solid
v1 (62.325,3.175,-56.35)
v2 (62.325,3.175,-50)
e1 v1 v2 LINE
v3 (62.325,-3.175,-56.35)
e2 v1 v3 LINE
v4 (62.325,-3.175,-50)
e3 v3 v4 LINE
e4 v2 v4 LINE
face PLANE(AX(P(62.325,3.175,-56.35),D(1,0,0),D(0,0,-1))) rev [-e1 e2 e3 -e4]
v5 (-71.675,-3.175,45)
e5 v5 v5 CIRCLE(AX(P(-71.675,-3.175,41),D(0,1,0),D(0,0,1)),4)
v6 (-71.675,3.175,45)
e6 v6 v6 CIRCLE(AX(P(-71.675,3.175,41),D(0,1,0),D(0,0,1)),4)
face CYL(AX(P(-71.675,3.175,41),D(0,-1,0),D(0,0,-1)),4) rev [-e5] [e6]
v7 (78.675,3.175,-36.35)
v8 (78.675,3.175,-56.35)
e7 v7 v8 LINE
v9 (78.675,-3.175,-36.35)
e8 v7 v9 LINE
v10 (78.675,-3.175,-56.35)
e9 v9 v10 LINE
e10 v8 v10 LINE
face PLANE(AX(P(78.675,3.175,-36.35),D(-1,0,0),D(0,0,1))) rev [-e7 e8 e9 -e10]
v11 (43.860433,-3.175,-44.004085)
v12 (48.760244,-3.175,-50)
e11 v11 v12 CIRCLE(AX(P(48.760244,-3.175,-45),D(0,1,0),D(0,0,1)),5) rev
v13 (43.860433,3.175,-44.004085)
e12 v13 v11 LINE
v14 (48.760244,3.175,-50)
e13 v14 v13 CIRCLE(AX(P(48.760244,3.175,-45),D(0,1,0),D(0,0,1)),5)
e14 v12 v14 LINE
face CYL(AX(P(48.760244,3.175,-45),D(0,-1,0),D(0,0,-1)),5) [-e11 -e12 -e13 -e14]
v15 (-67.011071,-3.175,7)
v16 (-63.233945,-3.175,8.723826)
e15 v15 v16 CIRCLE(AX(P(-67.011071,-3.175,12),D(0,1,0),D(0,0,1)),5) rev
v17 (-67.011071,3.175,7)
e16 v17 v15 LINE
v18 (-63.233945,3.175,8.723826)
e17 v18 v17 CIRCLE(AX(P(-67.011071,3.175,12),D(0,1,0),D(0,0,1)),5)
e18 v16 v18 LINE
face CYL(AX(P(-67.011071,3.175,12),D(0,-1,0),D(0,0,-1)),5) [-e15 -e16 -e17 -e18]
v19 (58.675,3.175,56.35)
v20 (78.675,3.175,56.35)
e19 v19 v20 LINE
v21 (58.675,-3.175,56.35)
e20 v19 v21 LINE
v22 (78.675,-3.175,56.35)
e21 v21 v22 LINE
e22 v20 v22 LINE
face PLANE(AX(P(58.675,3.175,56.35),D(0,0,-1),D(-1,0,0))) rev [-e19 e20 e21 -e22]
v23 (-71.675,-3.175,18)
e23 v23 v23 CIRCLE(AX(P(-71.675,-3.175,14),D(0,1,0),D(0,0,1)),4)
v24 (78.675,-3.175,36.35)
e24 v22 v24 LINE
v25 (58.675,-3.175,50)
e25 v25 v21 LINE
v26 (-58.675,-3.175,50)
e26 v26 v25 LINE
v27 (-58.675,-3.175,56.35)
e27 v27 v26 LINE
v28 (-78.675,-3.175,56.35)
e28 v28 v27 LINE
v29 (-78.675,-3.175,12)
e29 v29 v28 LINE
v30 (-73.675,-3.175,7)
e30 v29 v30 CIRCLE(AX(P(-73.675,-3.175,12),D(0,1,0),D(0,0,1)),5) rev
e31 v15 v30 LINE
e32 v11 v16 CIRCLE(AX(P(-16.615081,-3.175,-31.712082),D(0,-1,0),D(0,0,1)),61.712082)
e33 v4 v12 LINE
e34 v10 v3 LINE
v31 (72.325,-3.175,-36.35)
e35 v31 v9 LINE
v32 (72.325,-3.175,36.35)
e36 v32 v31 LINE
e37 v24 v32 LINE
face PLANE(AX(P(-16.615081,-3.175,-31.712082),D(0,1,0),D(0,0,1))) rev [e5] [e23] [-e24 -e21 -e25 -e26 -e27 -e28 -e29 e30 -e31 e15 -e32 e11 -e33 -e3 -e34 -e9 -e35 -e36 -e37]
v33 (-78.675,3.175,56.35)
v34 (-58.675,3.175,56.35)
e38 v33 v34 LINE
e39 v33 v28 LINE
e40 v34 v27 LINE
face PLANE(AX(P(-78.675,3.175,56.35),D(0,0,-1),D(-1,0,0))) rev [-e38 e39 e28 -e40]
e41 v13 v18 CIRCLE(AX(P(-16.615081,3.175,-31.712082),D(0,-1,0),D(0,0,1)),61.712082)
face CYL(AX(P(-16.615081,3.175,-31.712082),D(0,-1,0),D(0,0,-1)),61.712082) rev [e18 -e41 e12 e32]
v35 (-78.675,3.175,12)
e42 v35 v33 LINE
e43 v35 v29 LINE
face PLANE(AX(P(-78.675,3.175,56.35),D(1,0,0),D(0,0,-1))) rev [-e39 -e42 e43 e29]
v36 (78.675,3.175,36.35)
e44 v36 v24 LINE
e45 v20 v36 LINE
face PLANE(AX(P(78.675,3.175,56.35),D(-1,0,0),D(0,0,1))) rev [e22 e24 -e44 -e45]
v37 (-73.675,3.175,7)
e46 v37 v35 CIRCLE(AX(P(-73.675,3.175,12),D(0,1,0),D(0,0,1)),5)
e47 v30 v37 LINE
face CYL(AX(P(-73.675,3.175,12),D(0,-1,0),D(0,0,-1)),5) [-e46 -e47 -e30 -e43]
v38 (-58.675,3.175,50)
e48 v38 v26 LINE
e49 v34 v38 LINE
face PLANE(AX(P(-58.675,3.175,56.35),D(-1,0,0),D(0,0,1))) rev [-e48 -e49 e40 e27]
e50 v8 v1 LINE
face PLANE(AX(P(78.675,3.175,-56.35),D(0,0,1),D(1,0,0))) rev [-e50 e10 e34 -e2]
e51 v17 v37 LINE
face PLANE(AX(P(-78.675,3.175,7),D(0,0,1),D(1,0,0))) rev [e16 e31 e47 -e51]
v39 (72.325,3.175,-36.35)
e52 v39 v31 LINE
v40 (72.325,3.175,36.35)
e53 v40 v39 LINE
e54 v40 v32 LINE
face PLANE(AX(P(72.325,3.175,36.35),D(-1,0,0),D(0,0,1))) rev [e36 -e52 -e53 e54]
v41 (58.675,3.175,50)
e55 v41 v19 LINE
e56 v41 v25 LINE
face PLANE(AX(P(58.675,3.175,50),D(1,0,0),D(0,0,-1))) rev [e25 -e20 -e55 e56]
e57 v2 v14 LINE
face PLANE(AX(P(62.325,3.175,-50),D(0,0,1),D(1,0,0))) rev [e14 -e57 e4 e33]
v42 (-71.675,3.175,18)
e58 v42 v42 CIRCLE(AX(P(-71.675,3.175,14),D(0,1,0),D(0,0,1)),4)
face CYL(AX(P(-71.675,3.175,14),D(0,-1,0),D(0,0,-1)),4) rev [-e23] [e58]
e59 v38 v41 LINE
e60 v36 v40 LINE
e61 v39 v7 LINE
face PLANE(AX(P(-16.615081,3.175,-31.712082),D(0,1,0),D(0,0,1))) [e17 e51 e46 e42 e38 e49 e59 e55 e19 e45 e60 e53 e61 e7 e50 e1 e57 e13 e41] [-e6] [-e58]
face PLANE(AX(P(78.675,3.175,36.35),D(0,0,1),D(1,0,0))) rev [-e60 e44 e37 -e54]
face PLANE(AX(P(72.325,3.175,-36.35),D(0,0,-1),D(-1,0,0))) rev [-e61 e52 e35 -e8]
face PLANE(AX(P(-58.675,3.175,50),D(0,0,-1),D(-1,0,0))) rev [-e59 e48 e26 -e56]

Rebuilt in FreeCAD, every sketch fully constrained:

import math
import FreeCAD as App
import Part
import Sketcher


def edges_at(feature, points):
    """Names of the edges that pass closest to the given points."""
    edges = feature.Shape.Edges
    near = lambda p: min(range(len(edges)), key=lambda i: edges[i].distToShape(Part.Vertex(*p))[0])
    return sorted({f"Edge{near(p) + 1}" for p in points})

doc = App.newDocument("Part")
body = doc.addObject("PartDesign::Body", "Body")

# Sketch on XZ plane
sketch1 = doc.addObject("Sketcher::SketchObject", "Sketch")
body.addObject(sketch1)
sketch1.AttachmentSupport = (doc.XZ_Plane, [""])
sketch1.MapMode = "FlatFace"
sketch1.addGeometry(Part.LineSegment(App.Vector(-78.675, 56.35, 0), App.Vector(-58.675, 56.35, 0)), False)
sketch1.addGeometry(Part.LineSegment(App.Vector(-58.675, 56.35, 0), App.Vector(-58.675, 50, 0)), False)
sketch1.addGeometry(Part.LineSegment(App.Vector(-58.675, 50, 0), App.Vector(58.675, 50, 0)), False)
sketch1.addGeometry(Part.LineSegment(App.Vector(58.675, 50, 0), App.Vector(58.675, 56.35, 0)), False)
sketch1.addGeometry(Part.LineSegment(App.Vector(58.675, 56.35, 0), App.Vector(78.675, 56.35, 0)), False)
sketch1.addGeometry(Part.LineSegment(App.Vector(78.675, 56.35, 0), App.Vector(78.675, 36.35, 0)), False)
sketch1.addGeometry(Part.LineSegment(App.Vector(78.675, 36.35, 0), App.Vector(72.325, 36.35, 0)), False)
sketch1.addGeometry(Part.LineSegment(App.Vector(72.325, 36.35, 0), App.Vector(72.325, -36.35, 0)), False)
sketch1.addGeometry(Part.LineSegment(App.Vector(72.325, -36.35, 0), App.Vector(78.675, -36.35, 0)), False)
sketch1.addGeometry(Part.LineSegment(App.Vector(78.675, -36.35, 0), App.Vector(78.675, -56.35, 0)), False)
sketch1.addGeometry(Part.LineSegment(App.Vector(78.675, -56.35, 0), App.Vector(62.325, -56.35, 0)), False)
sketch1.addGeometry(Part.LineSegment(App.Vector(62.325, -56.35, 0), App.Vector(62.325, -50, 0)), False)
sketch1.addGeometry(Part.LineSegment(App.Vector(62.325, -50, 0), App.Vector(42.325, -50, 0)), False)
sketch1.addGeometry(Part.ArcOfCircle(Part.Circle(App.Vector(-16.615081, -31.712082, 0), App.Vector(0, 0, 1), 61.712082), math.radians(-17.238062), math.radians(141.148688)), False)
sketch1.addGeometry(Part.LineSegment(App.Vector(-64.675, 7, 0), App.Vector(-78.675, 7, 0)), False)
sketch1.addGeometry(Part.LineSegment(App.Vector(-78.675, 7, 0), App.Vector(-78.675, 56.35, 0)), False)
sketch1.addGeometry(Part.Circle(App.Vector(-71.675, 41, 0), App.Vector(0, 0, 1), 4), False)
sketch1.addGeometry(Part.Circle(App.Vector(-71.675, 14, 0), App.Vector(0, 0, 1), 4), False)
sketch1.addConstraint(Sketcher.Constraint("Coincident", 0, 2, 1, 1))
sketch1.addConstraint(Sketcher.Constraint("Coincident", 1, 2, 2, 1))
sketch1.addConstraint(Sketcher.Constraint("Coincident", 2, 2, 3, 1))
sketch1.addConstraint(Sketcher.Constraint("Coincident", 3, 2, 4, 1))
sketch1.addConstraint(Sketcher.Constraint("Coincident", 4, 2, 5, 1))
sketch1.addConstraint(Sketcher.Constraint("Coincident", 5, 2, 6, 1))
sketch1.addConstraint(Sketcher.Constraint("Coincident", 6, 2, 7, 1))
sketch1.addConstraint(Sketcher.Constraint("Coincident", 7, 2, 8, 1))
sketch1.addConstraint(Sketcher.Constraint("Coincident", 8, 2, 9, 1))
sketch1.addConstraint(Sketcher.Constraint("Coincident", 9, 2, 10, 1))
sketch1.addConstraint(Sketcher.Constraint("Coincident", 10, 2, 11, 1))
sketch1.addConstraint(Sketcher.Constraint("Coincident", 11, 2, 12, 1))
sketch1.addConstraint(Sketcher.Constraint("Coincident", 12, 2, 13, 1))
sketch1.addConstraint(Sketcher.Constraint("Coincident", 13, 2, 14, 1))
sketch1.addConstraint(Sketcher.Constraint("Coincident", 14, 2, 15, 1))
sketch1.addConstraint(Sketcher.Constraint("Coincident", 15, 2, 0, 1))
sketch1.addConstraint(Sketcher.Constraint("Horizontal", 0))
sketch1.addConstraint(Sketcher.Constraint("Vertical", 1))
sketch1.addConstraint(Sketcher.Constraint("Horizontal", 2))
sketch1.addConstraint(Sketcher.Constraint("Vertical", 3))
sketch1.addConstraint(Sketcher.Constraint("Horizontal", 4))
sketch1.addConstraint(Sketcher.Constraint("Vertical", 5))
sketch1.addConstraint(Sketcher.Constraint("Horizontal", 6))
sketch1.addConstraint(Sketcher.Constraint("Vertical", 7))
sketch1.addConstraint(Sketcher.Constraint("Horizontal", 8))
sketch1.addConstraint(Sketcher.Constraint("Vertical", 9))
sketch1.addConstraint(Sketcher.Constraint("Horizontal", 10))
sketch1.addConstraint(Sketcher.Constraint("Vertical", 11))
sketch1.addConstraint(Sketcher.Constraint("Horizontal", 12))
sketch1.addConstraint(Sketcher.Constraint("Horizontal", 14))
sketch1.addConstraint(Sketcher.Constraint("Vertical", 15))
sketch1.addConstraint(Sketcher.Constraint("Equal", 16, 17))
sketch1.addConstraint(Sketcher.Constraint("Symmetric", 9, 2, 15, 2, -1, 1))
sketch1.addConstraint(Sketcher.Constraint("Symmetric", 0, 2, 3, 2, -2))
sketch1.addConstraint(Sketcher.Constraint("Symmetric", 5, 2, 8, 2, -1))
sketch1.addConstraint(Sketcher.Constraint("Vertical", 16, 3, 17, 3))
sketch1.addConstraint(Sketcher.Constraint("Equal", 4, 12))
sketch1.addConstraint(Sketcher.Constraint("Equal", 8, 1))
sketch1.addConstraint(Sketcher.Constraint("Equal", 12, 5))
sketch1.addConstraint(Sketcher.Constraint("Equal", 3, 11))
sketch1.addConstraint(Sketcher.Constraint("Diameter", 16, 8.0))
sketch1.addConstraint(Sketcher.Constraint("DistanceX", 0, 1, 0, 2, 20.0))
sketch1.addConstraint(Sketcher.Constraint("DistanceX", 14, 2, 14, 1, 14.0))
sketch1.addConstraint(Sketcher.Constraint("DistanceY", 7, 2, 7, 1, 72.7))
sketch1.addConstraint(Sketcher.Constraint("DistanceY", -1, 1, 16, 3, 41.0))
sketch1.addConstraint(Sketcher.Constraint("DistanceY", -1, 1, 17, 3, 14.0))
sketch1.addConstraint(Sketcher.Constraint("DistanceY", -1, 1, 1, 2, 50.0))
sketch1.addConstraint(Sketcher.Constraint("DistanceY", -1, 1, 13, 2, 7.0))
sketch1.addConstraint(Sketcher.Constraint("DistanceX", 16, 3, 0, 2, 13.0))
sketch1.addConstraint(Sketcher.Constraint("DistanceX", 10, 2, 7, 2, 10.0))
sketch1.addConstraint(Sketcher.Constraint("DistanceX", 2, 1, 2, 2, 117.35))
sketch1.addConstraint(Sketcher.Constraint("Radius", 13, 61.712082))
pad1 = doc.addObject("PartDesign::Pad", "Pad")
body.addObject(pad1)
pad1.Profile = sketch1
pad1.Length = 6.35
pad1.Midplane = True
doc.recompute()

fillet = doc.addObject("PartDesign::Fillet", "Fillet")
body.addObject(fillet)
fillet.Base = (pad1, edges_at(pad1, [(-78.675, 0, 7), (-64.675, 0, 7), (42.325, 0, -50)]))
fillet.Radius = 5

doc.recompute()
